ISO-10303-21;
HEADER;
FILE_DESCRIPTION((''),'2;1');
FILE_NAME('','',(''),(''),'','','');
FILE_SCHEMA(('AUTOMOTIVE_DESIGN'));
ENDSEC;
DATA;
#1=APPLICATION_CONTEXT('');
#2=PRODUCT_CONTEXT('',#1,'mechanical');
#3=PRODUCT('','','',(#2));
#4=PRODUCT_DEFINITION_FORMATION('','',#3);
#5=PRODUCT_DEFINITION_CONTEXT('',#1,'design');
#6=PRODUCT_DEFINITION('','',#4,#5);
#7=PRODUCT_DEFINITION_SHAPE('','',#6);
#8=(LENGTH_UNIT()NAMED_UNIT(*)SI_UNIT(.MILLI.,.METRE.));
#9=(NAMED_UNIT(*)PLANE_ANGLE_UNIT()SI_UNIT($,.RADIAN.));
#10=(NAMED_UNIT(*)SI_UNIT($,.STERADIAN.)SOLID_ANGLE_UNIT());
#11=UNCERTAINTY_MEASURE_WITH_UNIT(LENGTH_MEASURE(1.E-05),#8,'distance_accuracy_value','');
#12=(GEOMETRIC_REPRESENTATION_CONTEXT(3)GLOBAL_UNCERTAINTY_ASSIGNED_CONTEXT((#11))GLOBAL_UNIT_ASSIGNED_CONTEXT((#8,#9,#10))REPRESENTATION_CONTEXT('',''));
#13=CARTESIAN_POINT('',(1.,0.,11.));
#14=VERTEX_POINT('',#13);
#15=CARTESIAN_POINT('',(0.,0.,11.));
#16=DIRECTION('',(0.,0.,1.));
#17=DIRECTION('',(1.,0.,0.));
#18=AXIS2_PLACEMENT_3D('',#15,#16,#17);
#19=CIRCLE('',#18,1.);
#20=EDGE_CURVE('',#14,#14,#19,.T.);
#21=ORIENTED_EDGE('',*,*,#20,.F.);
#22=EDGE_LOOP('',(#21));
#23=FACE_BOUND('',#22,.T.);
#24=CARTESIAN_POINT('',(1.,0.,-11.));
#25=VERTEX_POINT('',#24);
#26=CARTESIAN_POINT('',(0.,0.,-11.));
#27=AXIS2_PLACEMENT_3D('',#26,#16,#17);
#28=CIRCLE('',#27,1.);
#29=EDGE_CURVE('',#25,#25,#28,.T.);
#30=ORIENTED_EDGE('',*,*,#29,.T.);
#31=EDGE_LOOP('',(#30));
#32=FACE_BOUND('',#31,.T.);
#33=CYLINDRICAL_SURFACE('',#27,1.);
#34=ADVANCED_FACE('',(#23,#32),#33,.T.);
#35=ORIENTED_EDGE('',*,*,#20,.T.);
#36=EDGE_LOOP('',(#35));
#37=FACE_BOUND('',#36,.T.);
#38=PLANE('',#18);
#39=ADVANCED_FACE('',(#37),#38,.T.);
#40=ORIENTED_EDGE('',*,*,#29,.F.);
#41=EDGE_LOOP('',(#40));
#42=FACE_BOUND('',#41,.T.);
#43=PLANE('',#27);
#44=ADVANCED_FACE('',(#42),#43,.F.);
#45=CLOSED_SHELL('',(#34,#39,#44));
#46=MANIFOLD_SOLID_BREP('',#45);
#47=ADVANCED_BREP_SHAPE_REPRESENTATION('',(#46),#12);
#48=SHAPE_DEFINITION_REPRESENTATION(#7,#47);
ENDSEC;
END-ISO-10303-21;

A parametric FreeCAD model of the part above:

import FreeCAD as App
import Part
import Sketcher

doc = App.newDocument("Part")
body = doc.addObject("PartDesign::Body", "Body")

sketch1 = body.newObject("Sketcher::SketchObject", "Sketch")
sketch1.AttachmentSupport = (doc.getObject("XY_Plane"), [""])
sketch1.MapMode = "FlatFace"
sketch1.addGeometry(Part.Circle(App.Vector(0, 0, 0), App.Vector(0, 0, 1), 1), False)
sketch1.addConstraint([
    Sketcher.Constraint("Coincident", 0, 3, -1, 1),
    Sketcher.Constraint("Diameter", 0, 2.0),
])
pad1 = body.newObject("PartDesign::Pad", "Pad")
pad1.Profile = sketch1
pad1.Type = "TwoLengths"
pad1.Length = 11
pad1.Length2 = 11

doc.recompute()
